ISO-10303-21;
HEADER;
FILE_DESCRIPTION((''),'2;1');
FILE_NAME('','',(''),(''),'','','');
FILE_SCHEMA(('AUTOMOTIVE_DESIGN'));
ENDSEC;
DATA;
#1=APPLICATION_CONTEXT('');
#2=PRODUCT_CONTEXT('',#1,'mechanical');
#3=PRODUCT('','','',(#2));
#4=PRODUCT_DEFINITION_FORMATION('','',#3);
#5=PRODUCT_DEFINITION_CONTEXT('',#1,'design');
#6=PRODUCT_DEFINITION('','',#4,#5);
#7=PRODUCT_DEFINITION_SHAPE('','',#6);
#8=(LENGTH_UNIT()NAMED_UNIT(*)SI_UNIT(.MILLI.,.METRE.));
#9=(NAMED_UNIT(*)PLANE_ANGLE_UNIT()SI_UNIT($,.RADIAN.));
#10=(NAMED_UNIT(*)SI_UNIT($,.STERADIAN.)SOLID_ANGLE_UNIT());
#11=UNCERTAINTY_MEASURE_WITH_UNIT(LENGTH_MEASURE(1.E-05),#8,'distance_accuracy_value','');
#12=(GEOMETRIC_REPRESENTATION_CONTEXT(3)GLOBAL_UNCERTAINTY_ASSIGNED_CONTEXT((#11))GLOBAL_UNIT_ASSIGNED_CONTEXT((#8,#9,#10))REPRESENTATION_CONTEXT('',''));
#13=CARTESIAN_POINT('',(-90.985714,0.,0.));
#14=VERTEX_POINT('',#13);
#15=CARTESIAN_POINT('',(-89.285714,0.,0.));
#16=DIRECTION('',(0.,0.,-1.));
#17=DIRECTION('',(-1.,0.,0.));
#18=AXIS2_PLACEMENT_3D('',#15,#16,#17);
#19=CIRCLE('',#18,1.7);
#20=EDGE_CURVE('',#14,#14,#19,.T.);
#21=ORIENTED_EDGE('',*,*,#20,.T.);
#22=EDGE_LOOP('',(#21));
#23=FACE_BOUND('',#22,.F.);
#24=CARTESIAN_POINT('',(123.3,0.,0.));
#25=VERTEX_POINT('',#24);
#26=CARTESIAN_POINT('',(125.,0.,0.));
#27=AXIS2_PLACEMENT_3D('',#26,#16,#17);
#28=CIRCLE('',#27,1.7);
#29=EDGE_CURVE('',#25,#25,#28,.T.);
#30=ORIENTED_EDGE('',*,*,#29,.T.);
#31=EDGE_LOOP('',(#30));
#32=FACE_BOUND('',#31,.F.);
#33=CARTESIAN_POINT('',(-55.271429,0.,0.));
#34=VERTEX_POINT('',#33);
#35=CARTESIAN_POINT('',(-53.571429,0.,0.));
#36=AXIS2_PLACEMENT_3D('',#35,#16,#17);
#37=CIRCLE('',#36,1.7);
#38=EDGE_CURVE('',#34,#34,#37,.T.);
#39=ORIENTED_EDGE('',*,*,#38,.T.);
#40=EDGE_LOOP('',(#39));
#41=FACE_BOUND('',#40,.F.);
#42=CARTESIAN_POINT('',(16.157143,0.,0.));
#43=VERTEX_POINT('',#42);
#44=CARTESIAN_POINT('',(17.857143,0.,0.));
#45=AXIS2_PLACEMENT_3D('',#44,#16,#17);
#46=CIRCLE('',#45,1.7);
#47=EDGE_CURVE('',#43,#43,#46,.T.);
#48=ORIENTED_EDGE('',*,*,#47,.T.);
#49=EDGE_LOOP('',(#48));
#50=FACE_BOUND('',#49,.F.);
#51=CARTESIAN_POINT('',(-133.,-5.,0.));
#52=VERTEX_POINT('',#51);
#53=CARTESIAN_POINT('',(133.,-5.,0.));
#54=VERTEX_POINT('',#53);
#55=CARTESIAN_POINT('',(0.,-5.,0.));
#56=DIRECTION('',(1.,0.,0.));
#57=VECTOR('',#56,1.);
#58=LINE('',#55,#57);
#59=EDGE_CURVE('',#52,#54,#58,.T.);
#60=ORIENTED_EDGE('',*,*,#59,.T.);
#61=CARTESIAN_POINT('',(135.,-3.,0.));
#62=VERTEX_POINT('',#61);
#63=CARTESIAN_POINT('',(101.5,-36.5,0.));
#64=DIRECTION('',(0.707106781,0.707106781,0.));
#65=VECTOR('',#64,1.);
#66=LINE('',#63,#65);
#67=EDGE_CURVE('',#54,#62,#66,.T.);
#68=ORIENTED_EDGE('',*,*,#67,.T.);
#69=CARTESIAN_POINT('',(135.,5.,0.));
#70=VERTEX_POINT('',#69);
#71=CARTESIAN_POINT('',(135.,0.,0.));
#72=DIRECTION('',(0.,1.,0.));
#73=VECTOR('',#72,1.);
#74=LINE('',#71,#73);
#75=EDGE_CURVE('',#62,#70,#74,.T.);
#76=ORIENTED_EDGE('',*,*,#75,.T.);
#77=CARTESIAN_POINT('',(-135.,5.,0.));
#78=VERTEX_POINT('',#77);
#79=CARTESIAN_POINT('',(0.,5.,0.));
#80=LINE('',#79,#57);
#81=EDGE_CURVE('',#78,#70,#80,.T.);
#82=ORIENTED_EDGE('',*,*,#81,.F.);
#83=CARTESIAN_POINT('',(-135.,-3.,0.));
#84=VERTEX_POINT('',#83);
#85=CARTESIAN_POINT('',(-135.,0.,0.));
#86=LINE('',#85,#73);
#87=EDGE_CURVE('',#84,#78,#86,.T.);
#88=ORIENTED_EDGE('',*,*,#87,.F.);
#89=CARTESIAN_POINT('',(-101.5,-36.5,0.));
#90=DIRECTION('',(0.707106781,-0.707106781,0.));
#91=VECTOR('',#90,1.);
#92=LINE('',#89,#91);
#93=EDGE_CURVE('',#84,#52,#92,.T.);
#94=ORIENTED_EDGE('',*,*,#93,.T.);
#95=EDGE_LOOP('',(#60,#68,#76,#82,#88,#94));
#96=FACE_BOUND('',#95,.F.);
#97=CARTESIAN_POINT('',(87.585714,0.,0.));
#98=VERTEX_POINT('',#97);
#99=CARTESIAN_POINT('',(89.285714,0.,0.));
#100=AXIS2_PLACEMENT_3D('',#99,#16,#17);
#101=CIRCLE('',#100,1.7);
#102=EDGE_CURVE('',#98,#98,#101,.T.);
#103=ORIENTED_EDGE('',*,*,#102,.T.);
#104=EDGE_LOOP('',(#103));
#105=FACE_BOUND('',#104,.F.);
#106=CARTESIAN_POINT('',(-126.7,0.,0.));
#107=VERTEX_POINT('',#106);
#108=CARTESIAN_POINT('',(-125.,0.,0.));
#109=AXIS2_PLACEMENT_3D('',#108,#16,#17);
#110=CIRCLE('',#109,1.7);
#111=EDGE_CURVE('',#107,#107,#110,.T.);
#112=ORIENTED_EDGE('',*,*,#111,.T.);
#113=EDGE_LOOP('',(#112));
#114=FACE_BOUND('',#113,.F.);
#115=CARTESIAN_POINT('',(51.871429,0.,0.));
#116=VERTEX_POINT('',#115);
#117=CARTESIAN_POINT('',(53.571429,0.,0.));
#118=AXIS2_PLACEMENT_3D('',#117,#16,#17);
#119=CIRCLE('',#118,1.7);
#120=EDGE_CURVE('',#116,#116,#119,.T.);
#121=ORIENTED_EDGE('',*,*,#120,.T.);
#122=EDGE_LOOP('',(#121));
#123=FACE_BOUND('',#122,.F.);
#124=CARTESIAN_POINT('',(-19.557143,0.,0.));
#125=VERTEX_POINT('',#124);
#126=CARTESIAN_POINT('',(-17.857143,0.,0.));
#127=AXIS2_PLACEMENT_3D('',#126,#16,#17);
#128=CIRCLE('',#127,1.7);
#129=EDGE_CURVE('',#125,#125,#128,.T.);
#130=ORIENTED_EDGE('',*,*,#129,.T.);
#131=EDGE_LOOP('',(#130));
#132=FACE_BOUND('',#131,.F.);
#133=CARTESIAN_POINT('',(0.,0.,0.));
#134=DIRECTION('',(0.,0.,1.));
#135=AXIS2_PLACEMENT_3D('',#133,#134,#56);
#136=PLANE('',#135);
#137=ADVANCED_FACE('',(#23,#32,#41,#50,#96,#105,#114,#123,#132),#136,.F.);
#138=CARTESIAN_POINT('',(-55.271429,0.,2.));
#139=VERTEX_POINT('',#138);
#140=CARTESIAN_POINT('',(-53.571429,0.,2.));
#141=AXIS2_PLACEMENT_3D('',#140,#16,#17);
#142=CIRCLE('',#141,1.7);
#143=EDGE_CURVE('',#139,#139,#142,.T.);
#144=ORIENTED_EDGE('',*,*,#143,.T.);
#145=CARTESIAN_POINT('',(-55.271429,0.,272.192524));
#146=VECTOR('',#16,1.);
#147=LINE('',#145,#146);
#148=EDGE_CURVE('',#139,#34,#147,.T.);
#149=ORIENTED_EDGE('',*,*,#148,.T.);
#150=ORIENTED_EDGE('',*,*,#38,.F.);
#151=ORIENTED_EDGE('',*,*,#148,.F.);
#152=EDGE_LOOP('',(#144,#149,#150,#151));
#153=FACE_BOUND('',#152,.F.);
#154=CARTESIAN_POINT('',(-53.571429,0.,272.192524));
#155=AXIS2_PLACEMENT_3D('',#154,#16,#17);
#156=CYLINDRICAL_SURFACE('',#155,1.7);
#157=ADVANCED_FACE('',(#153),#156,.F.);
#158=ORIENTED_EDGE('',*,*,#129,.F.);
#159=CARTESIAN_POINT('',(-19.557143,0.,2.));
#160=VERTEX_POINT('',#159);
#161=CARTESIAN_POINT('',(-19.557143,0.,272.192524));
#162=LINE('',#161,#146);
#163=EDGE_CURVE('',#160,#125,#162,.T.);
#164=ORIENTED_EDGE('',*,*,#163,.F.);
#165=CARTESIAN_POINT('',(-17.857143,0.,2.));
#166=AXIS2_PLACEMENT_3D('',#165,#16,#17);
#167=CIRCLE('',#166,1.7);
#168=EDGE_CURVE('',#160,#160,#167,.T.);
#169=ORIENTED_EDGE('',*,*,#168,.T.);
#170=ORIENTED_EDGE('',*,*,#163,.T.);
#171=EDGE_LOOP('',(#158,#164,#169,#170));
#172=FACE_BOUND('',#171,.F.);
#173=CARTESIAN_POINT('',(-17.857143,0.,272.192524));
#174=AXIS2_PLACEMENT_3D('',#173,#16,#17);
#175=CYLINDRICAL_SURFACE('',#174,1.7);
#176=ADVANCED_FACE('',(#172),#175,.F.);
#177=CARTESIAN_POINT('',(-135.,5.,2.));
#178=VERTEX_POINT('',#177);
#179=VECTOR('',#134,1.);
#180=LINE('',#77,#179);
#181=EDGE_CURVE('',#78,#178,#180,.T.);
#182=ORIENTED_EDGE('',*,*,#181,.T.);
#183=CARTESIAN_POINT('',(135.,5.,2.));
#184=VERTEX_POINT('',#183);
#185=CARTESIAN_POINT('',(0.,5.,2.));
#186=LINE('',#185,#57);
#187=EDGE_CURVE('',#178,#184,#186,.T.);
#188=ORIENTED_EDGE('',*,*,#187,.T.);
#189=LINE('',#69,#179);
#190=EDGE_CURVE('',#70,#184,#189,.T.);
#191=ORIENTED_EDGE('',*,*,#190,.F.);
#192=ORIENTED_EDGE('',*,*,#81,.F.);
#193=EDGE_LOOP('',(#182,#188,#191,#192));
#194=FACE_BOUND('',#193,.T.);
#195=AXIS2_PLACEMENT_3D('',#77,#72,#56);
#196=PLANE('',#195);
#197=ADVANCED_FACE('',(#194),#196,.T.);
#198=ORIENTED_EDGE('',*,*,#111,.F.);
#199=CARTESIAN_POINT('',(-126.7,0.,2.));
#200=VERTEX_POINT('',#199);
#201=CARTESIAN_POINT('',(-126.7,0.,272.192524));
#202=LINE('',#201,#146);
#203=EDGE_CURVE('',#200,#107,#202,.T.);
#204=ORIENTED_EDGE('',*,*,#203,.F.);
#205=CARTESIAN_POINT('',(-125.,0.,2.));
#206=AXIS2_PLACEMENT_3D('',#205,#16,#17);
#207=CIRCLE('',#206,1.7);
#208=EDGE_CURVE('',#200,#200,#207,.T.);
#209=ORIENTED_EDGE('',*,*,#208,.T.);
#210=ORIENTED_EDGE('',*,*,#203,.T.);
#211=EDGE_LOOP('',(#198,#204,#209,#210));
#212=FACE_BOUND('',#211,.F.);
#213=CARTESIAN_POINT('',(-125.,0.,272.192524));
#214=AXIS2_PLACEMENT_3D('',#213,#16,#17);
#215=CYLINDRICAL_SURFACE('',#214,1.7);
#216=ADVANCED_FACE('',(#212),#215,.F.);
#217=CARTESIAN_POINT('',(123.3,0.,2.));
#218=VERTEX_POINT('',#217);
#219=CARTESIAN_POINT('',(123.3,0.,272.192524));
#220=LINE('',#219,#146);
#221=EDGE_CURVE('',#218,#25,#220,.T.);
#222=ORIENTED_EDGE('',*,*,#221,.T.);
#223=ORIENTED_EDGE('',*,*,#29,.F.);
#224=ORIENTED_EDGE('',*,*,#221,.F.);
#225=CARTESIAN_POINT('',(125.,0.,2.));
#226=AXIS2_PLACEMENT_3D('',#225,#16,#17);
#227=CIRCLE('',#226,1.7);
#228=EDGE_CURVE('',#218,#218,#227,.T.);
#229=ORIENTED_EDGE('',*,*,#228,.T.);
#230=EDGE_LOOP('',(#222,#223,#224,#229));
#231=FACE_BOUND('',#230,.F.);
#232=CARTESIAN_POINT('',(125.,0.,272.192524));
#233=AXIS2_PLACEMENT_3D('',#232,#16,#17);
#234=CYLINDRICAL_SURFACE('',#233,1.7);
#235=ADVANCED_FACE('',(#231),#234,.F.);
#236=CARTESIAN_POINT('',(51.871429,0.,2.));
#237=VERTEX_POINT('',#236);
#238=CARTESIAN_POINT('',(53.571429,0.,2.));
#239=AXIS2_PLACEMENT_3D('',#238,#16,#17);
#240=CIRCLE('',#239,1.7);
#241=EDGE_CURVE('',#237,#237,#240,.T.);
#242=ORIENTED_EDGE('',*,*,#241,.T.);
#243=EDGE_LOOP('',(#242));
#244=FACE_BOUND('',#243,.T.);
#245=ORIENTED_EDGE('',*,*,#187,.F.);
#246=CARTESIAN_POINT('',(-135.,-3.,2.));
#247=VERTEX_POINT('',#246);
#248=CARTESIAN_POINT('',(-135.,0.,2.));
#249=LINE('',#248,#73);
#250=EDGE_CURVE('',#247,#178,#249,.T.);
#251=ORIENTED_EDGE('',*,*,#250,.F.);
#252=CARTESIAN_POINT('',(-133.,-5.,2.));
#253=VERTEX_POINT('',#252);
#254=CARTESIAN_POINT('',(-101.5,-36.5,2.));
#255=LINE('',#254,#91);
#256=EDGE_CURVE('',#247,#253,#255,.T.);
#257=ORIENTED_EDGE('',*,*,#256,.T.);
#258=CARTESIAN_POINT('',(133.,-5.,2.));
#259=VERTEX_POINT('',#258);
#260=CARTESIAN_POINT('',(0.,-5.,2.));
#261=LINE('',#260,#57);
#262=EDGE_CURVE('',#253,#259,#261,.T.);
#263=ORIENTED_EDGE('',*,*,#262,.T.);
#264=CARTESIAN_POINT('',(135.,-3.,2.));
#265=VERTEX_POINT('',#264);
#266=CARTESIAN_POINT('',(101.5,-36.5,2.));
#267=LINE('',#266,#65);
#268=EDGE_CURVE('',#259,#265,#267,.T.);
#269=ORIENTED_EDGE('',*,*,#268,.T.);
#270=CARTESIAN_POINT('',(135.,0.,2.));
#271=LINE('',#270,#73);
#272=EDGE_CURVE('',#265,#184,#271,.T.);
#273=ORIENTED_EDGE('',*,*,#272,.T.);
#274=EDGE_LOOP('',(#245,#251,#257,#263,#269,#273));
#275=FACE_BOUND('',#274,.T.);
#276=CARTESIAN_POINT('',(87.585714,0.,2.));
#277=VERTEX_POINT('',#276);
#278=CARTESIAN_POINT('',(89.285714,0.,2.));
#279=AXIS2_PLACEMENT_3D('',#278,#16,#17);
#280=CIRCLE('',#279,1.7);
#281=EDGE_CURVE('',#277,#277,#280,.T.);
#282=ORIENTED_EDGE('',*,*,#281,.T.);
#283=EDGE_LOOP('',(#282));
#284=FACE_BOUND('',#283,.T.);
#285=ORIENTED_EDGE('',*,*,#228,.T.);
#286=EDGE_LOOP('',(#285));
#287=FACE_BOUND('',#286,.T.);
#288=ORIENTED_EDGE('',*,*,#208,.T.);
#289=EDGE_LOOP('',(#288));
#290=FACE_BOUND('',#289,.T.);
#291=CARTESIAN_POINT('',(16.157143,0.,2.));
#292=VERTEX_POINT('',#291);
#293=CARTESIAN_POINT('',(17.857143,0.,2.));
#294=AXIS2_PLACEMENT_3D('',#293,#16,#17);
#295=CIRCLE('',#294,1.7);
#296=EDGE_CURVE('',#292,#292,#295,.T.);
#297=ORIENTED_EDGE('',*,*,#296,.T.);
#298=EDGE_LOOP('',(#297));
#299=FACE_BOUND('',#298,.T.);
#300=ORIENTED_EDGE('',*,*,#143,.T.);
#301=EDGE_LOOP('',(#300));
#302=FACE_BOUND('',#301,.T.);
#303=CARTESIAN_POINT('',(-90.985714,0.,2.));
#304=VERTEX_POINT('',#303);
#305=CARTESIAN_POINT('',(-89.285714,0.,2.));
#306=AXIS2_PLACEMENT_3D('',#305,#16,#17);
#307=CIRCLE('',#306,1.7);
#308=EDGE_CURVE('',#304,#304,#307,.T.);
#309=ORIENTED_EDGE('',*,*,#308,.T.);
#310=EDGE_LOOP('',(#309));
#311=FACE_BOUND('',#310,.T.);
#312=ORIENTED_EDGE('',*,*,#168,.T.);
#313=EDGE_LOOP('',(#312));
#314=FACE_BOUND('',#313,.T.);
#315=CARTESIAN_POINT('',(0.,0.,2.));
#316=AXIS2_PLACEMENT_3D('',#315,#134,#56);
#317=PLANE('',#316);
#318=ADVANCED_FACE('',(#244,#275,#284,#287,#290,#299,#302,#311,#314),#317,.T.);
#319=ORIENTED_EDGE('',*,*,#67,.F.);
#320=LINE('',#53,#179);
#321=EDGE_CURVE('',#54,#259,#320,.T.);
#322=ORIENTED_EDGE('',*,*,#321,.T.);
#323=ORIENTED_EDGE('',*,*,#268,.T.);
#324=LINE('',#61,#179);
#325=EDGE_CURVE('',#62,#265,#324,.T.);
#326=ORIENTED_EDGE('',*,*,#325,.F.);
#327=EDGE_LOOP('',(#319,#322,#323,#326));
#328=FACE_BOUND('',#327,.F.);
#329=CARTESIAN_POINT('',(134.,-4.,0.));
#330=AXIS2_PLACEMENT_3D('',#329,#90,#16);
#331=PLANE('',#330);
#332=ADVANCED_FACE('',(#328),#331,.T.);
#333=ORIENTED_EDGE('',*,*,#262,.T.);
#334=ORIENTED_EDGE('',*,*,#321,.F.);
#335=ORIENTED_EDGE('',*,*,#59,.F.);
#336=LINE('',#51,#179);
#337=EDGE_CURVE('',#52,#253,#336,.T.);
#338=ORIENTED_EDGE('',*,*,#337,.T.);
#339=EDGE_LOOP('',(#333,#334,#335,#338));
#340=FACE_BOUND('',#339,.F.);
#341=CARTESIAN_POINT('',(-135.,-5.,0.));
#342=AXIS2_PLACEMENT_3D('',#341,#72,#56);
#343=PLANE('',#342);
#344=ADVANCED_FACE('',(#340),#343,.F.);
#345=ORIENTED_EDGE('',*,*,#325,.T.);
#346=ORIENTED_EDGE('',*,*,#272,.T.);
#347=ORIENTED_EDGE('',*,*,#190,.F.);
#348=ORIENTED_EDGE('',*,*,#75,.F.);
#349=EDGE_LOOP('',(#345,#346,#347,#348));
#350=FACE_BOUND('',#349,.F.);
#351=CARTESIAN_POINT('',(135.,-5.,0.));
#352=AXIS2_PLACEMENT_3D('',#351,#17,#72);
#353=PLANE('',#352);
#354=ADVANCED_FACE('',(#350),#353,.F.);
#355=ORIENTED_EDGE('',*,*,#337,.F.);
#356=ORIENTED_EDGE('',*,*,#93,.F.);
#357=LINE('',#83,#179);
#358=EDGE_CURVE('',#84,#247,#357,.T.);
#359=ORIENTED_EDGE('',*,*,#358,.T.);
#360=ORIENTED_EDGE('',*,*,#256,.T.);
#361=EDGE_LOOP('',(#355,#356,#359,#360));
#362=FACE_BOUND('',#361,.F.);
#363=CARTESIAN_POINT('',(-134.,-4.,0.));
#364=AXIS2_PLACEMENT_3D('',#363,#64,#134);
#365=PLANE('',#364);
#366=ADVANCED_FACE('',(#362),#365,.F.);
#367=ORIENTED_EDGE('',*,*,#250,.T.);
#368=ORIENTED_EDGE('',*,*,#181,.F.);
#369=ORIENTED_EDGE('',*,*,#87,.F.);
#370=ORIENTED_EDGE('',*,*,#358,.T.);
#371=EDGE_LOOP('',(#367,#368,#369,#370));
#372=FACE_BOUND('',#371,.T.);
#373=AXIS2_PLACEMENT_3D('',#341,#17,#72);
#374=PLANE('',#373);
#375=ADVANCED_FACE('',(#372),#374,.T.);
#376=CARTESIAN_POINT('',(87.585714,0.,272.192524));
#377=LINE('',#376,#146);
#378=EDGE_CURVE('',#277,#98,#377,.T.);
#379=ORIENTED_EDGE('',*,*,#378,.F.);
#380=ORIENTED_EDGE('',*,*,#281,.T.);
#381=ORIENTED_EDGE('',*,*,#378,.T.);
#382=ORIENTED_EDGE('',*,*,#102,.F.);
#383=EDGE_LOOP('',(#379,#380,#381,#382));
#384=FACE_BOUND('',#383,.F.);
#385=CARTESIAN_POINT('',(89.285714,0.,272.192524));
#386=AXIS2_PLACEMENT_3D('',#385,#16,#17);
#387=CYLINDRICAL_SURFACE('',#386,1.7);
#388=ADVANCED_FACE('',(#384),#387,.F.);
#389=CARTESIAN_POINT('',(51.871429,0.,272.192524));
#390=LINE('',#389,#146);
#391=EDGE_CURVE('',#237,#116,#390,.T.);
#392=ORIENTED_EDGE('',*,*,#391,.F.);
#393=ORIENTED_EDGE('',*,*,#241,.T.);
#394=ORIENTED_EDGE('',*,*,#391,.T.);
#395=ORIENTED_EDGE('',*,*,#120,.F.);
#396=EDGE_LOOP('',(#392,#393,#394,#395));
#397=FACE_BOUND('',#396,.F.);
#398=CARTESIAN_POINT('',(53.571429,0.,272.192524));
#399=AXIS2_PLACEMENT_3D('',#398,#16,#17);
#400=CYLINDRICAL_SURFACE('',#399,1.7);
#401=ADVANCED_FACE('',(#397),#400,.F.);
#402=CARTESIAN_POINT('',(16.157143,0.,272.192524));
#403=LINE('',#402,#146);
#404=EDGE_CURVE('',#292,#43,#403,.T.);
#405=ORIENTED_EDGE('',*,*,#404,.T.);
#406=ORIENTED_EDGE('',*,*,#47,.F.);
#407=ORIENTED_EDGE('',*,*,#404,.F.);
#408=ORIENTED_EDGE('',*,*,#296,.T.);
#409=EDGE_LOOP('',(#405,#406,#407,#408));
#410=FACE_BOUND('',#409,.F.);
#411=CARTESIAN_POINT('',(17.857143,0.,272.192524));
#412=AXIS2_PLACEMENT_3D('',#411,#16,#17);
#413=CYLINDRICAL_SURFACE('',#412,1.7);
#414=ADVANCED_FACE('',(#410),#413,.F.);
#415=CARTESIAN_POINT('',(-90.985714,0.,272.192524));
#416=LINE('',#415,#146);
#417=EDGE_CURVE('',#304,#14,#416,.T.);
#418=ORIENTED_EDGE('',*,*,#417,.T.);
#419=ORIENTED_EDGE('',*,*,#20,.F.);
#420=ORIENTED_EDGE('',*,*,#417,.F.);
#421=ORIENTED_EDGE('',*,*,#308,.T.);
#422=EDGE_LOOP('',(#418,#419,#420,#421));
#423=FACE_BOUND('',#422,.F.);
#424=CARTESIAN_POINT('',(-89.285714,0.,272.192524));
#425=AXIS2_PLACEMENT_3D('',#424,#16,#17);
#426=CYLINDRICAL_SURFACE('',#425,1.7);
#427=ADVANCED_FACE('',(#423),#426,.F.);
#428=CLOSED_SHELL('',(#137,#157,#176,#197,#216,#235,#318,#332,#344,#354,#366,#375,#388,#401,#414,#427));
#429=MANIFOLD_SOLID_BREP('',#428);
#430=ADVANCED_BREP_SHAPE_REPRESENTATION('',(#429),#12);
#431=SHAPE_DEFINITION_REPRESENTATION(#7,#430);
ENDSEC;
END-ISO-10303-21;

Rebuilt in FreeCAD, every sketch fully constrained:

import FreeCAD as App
import Part
import Sketcher


def edges_at(feature, points):
    """Names of the edges that pass closest to the given points."""
    edges = feature.Shape.Edges
    near = lambda p: min(range(len(edges)), key=lambda i: edges[i].distToShape(Part.Vertex(*p))[0])
    return sorted({f"Edge{near(p) + 1}" for p in points})


def add_polygon(sketch, points):
    """Adds a closed chain of lines whose ends are joined by coincident constraints."""
    first, n = sketch.GeometryCount, len(points)
    for a, b in zip(points, points[1:] + points[:1]):
        sketch.addGeometry(Part.LineSegment(App.Vector(*a, 0), App.Vector(*b, 0)), False)
    for i in range(n):
        sketch.addConstraint(Sketcher.Constraint("Coincident", first + i, 2, first + (i + 1) % n, 1))

doc = App.newDocument("Part")
params = doc.addObject("Spreadsheet::Sheet", "Params")
for row, (alias, value) in enumerate([
    ("sketch1_width", "270 mm"),
    ("sketch1_height", "10 mm"),
    ("pad1_length", "2 mm"),
    ("chamfer_size", "2 mm"),
    ("sketch2_diameter", "3.4 mm"),
    ("hole_diameter", "3.4 mm"),
    ("linearpattern_pitch", "35.714286 mm"),
], start=1):
    params.set(f"A{row}", alias)
    params.set(f"B{row}", "=" + value)
    params.setAlias(f"B{row}", alias)

body = doc.addObject("PartDesign::Body", "Body")

sketch1 = doc.addObject("Sketcher::SketchObject", "Sketch")
body.addObject(sketch1)
sketch1.AttachmentSupport = (doc.XY_Plane, [""])
sketch1.MapMode = "FlatFace"
add_polygon(sketch1, [(-135, 5), (-135, -5), (135, -5), (135, 5)])
sketch1.addConstraint([
    Sketcher.Constraint("Vertical", 0),
    Sketcher.Constraint("Horizontal", 1),
    Sketcher.Constraint("Vertical", 2),
    Sketcher.Constraint("Horizontal", 3),
    Sketcher.Constraint("Symmetric", 0, 2, 2, 2, -1, 1),
    Sketcher.Constraint("DistanceX", 1, 1, 1, 2, 270.0),
    Sketcher.Constraint("DistanceY", 0, 2, 0, 1, 10.0),
])
sketch1.setExpression("Constraints[9]", "Params.sketch1_width")
sketch1.setExpression("Constraints[10]", "Params.sketch1_height")
pad1 = doc.addObject("PartDesign::Pad", "Pad")
body.addObject(pad1)
pad1.Profile = sketch1
pad1.setExpression("Length", "Params.pad1_length")
doc.recompute()

chamfer = doc.addObject("PartDesign::Chamfer", "Chamfer")
body.addObject(chamfer)
chamfer.Base = (pad1, edges_at(pad1, [(135, -5, 1), (-135, -5, 1)]))
chamfer.setExpression("Size", "Params.chamfer_size")

sketch2 = doc.addObject("Sketcher::SketchObject", "Sketch001")
body.addObject(sketch2)
sketch2.AttachmentSupport = (doc.XY_Plane, [""])
sketch2.MapMode = "FlatFace"
sketch2.AttachmentOffset = App.Placement(App.Vector(0, 0, 2), App.Rotation())
sketch2.addGeometry(Part.Circle(App.Vector(125, 0, 0), App.Vector(0, 0, 1), 1.7), False)
sketch2.addConstraint([
    Sketcher.Constraint("PointOnObject", 0, 3, -1),
    Sketcher.Constraint("Diameter", 0, 3.4),
    Sketcher.Constraint("DistanceX", -1, 1, 0, 3, 125.0),
])
sketch2.setExpression("Constraints[1]", "Params.sketch2_diameter")
doc.recompute()
hole = doc.addObject("PartDesign::Hole", "Hole")
body.addObject(hole)
hole.Profile = sketch2
hole.ThreadType = "None"
hole.setExpression("Diameter", "Params.hole_diameter")
hole.DepthType = "ThroughAll"
doc.recompute()

linearpattern = doc.addObject("PartDesign::LinearPattern", "LinearPattern")
body.addObject(linearpattern)
linearpattern.Originals = [hole]
linearpattern.Direction = (doc.X_Axis, [""])
linearpattern.Mode = "offset"
linearpattern.setExpression("Offset", "Params.linearpattern_pitch")
linearpattern.Occurrences = 8
linearpattern.Reversed = True
body.Tip = linearpattern

doc.recompute()
